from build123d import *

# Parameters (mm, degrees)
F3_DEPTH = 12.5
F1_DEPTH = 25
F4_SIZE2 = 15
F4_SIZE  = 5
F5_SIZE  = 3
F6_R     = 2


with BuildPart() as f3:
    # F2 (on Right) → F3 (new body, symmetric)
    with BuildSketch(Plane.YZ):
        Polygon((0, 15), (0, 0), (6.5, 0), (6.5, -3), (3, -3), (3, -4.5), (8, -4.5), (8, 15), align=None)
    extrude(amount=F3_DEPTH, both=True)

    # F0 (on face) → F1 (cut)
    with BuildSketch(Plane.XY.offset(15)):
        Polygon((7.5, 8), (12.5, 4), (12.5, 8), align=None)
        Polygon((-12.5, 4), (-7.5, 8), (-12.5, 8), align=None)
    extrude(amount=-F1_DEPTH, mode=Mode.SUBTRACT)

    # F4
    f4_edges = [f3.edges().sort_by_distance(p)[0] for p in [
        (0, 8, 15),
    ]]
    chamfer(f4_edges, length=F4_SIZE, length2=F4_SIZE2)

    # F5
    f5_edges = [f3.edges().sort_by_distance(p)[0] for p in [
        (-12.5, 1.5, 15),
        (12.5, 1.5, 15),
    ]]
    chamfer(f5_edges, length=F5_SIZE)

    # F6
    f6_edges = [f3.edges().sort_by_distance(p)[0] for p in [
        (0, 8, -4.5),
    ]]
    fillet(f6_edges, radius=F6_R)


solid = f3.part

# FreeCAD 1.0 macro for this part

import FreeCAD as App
import Part
import Sketcher

V = App.Vector


def edges_at(feature, points):
    """Names of the edges that pass closest to the given points."""
    edges = feature.Shape.Edges
    near = lambda p: min(range(len(edges)), key=lambda i: edges[i].distToShape(Part.Vertex(*p))[0])
    return sorted({f"Edge{near(p) + 1}" for p in points})


def add_polygon(sketch, points):
    """Adds a closed chain of lines whose ends are joined by coincident constraints."""
    first, n = sketch.GeometryCount, len(points)
    for a, b in zip(points, points[1:] + points[:1]):
        sketch.addGeometry(Part.LineSegment(App.Vector(*a, 0), App.Vector(*b, 0)), False)
    for i in range(n):
        sketch.addConstraint(Sketcher.Constraint("Coincident", first + i, 2, first + (i + 1) % n, 1))

doc = App.newDocument("Part")
body = doc.addObject("PartDesign::Body", "Body")

# Sketch on YZ plane
sketch1 = doc.addObject("Sketcher::SketchObject", "Sketch")
body.addObject(sketch1)
sketch1.AttachmentSupport = (doc.YZ_Plane, [""])
sketch1.MapMode = "FlatFace"
add_polygon(sketch1, [(0, 15), (0, 0), (6.5, 0), (6.5, -3), (3, -3), (3, -4.5), (8, -4.5), (8, 15)])  # lines 0-7
sketch1.addConstraint(Sketcher.Constraint("Vertical", 0))
sketch1.addConstraint(Sketcher.Constraint("Horizontal", 1))
sketch1.addConstraint(Sketcher.Constraint("Vertical", 2))
sketch1.addConstraint(Sketcher.Constraint("Horizontal", 3))
sketch1.addConstraint(Sketcher.Constraint("Vertical", 4))
sketch1.addConstraint(Sketcher.Constraint("Horizontal", 5))
sketch1.addConstraint(Sketcher.Constraint("Vertical", 6))
sketch1.addConstraint(Sketcher.Constraint("Horizontal", 7))
sketch1.addConstraint(Sketcher.Constraint("Coincident", 0, 2, -1, 1))
sketch1.addConstraint(Sketcher.Constraint("DistanceX", 5, 1, 5, 2, 5.0))
sketch1.addConstraint(Sketcher.Constraint("DistanceX", 7, 2, 7, 1, 8.0))
sketch1.addConstraint(Sketcher.Constraint("DistanceY", 0, 2, 0, 1, 15.0))
sketch1.addConstraint(Sketcher.Constraint("DistanceY", 2, 2, 2, 1, 3.0))
sketch1.addConstraint(Sketcher.Constraint("DistanceX", 1, 1, 1, 2, 6.5))
sketch1.addConstraint(Sketcher.Constraint("DistanceY", 4, 2, 4, 1, 1.5))
pad1 = doc.addObject("PartDesign::Pad", "Pad")
body.addObject(pad1)
pad1.Profile = sketch1
pad1.Length = 25
pad1.Midplane = True

# Sketch on XY plane
sketch2 = doc.addObject("Sketcher::SketchObject", "Sketch001")
body.addObject(sketch2)
sketch2.AttachmentSupport = (doc.XY_Plane, [""])
sketch2.MapMode = "FlatFace"
sketch2.AttachmentOffset = App.Placement(V(0, 0, 15), App.Rotation())
add_polygon(sketch2, [(7.5, 8), (12.5, 4), (12.5, 8)])  # lines 0-2
add_polygon(sketch2, [(-12.5, 4), (-7.5, 8), (-12.5, 8)])  # lines 3-5
sketch2.addConstraint(Sketcher.Constraint("Vertical", 1))
sketch2.addConstraint(Sketcher.Constraint("Horizontal", 2))
sketch2.addConstraint(Sketcher.Constraint("Horizontal", 4))
sketch2.addConstraint(Sketcher.Constraint("Vertical", 5))
sketch2.addConstraint(Sketcher.Constraint("Symmetric", 2, 2, 3, 2, -2))
sketch2.addConstraint(Sketcher.Constraint("Symmetric", 0, 2, 5, 2, -2))
sketch2.addConstraint(Sketcher.Constraint("DistanceX", 2, 2, 2, 1, 5.0))
sketch2.addConstraint(Sketcher.Constraint("DistanceY", 1, 1, 1, 2, 4.0))
sketch2.addConstraint(Sketcher.Constraint("DistanceY", -1, 1, 0, 2, 4.0))
sketch2.addConstraint(Sketcher.Constraint("DistanceX", 3, 2, 2, 2, 15.0))
pocket1 = doc.addObject("PartDesign::Pocket", "Pocket")
body.addObject(pocket1)
pocket1.Profile = sketch2
pocket1.Length = 25
doc.recompute()

chamfer = doc.addObject("PartDesign::Chamfer", "Chamfer")
body.addObject(chamfer)
chamfer.Base = (pocket1, edges_at(pocket1, [(0, 8, 15)]))
chamfer.ChamferType = "Two distances"
chamfer.Size = 5
chamfer.Size2 = 15
doc.recompute()

chamfer2 = doc.addObject("PartDesign::Chamfer", "Chamfer001")
body.addObject(chamfer2)
chamfer2.Base = (chamfer, edges_at(chamfer, [(-12.5, 1.5, 15), (12.5, 1.5, 15)]))
chamfer2.Size = 3
doc.recompute()

fillet = doc.addObject("PartDesign::Fillet", "Fillet")
body.addObject(fillet)
fillet.Base = (chamfer2, edges_at(chamfer2, [(0, 8, -4.5)]))
fillet.Radius = 2

doc.recompute()
